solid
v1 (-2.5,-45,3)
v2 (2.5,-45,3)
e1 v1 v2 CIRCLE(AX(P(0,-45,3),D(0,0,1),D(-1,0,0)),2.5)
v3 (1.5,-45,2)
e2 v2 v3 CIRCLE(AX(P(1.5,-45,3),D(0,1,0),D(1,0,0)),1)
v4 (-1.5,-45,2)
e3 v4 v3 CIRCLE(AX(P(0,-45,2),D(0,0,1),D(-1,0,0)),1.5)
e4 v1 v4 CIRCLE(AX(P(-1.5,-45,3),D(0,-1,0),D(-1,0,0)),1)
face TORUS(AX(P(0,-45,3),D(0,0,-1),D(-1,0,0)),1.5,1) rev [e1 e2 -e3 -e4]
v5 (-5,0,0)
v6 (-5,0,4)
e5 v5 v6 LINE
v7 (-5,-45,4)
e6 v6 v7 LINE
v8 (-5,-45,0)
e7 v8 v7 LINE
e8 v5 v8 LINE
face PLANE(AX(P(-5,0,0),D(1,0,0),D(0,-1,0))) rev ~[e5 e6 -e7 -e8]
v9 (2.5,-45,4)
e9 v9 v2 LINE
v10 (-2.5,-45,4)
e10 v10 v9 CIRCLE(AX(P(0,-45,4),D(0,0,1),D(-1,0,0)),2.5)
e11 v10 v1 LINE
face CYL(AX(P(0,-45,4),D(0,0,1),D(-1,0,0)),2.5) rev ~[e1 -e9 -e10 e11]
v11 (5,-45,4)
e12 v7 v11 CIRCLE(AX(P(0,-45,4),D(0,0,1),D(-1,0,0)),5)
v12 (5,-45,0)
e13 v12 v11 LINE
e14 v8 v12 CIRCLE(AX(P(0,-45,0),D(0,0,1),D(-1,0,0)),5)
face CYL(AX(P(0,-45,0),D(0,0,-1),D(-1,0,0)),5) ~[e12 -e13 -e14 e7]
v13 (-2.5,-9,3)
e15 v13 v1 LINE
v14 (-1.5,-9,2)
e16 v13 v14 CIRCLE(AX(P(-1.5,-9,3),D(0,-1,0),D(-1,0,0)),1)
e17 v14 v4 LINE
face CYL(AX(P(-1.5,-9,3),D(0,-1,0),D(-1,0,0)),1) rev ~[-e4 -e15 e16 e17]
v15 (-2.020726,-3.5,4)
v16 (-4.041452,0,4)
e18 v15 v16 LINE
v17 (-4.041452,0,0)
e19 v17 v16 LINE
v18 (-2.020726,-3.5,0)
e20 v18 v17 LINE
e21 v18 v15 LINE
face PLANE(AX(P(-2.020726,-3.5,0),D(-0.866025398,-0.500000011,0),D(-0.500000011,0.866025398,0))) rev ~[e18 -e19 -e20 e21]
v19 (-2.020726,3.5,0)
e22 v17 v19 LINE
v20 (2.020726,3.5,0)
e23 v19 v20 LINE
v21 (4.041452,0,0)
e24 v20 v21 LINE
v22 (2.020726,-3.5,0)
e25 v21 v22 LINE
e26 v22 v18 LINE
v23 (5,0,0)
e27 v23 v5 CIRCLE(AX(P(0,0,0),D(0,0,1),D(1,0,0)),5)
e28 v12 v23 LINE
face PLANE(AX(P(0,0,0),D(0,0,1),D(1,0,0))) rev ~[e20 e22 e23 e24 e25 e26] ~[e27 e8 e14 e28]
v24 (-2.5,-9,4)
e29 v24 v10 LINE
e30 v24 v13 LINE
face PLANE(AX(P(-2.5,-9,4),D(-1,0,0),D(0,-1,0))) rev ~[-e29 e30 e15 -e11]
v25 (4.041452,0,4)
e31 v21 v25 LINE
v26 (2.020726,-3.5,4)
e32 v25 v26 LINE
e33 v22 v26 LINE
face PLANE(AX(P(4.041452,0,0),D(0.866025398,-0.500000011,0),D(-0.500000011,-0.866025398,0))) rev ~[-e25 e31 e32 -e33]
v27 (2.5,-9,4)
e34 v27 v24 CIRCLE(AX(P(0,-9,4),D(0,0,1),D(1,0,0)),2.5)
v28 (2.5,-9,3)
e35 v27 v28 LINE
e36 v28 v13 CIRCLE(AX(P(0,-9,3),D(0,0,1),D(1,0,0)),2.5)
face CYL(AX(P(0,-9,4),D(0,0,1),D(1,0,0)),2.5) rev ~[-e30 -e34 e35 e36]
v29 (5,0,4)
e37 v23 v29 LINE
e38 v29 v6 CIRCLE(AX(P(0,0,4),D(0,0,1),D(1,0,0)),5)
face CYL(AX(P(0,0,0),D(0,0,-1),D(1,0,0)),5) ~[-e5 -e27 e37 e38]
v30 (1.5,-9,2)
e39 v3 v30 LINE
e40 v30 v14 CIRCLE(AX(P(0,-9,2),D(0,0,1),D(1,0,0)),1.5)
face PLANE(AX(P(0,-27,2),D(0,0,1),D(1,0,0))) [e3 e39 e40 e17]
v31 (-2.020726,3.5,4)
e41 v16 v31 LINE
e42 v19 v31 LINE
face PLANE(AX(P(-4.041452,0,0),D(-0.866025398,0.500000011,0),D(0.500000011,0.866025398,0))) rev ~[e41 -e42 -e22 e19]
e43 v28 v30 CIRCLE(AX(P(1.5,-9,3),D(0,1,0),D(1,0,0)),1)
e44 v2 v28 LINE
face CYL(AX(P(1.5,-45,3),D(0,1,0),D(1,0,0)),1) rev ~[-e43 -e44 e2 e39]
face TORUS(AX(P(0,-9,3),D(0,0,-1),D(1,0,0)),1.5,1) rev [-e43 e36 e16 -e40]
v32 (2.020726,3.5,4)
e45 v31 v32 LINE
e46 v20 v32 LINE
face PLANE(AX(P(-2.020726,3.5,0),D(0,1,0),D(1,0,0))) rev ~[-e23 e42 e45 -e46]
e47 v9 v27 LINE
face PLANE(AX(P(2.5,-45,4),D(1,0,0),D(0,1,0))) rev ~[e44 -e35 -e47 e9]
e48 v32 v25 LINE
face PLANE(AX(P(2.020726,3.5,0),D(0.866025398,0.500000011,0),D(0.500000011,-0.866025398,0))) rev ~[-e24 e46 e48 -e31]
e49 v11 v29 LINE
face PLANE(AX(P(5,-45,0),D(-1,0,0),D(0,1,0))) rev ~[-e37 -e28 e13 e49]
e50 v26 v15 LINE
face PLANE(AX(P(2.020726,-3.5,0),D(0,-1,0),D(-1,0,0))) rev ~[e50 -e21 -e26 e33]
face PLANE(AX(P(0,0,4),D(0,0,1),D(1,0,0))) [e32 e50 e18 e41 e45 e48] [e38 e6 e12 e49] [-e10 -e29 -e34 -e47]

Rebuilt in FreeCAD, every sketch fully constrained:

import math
import FreeCAD as App
import Part
import Sketcher
from FreeCAD import Vector
Q = App.Units.Quantity


def edges_at(feature, points):
    """Names of the edges that pass closest to the given points."""
    edges = feature.Shape.Edges
    near = lambda p: min(range(len(edges)), key=lambda i: edges[i].distToShape(Part.Vertex(*p))[0])
    return sorted({f"Edge{near(p) + 1}" for p in points})


def add_polygon(sketch, points):
    """Adds a closed chain of lines whose ends are joined by coincident constraints."""
    first, n = sketch.GeometryCount, len(points)
    for a, b in zip(points, points[1:] + points[:1]):
        sketch.addGeometry(Part.LineSegment(App.Vector(*a, 0), App.Vector(*b, 0)), False)
    for i in range(n):
        sketch.addConstraint(Sketcher.Constraint("Coincident", first + i, 2, first + (i + 1) % n, 1))

doc = App.newDocument("Part")
body = doc.addObject("PartDesign::Body", "Body")

sketch1 = doc.addObject("Sketcher::SketchObject", "Sketch")
body.addObject(sketch1)
sketch1.AttachmentSupport = (doc.XY_Plane, [""])
sketch1.MapMode = "FlatFace"
sketch1.addGeometry(Part.ArcOfCircle(Part.Circle(Vector(0, 0, 0), Vector(0, 0, 1), 5), math.radians(0), math.radians(180)), False)
sketch1.addGeometry(Part.LineSegment(Vector(-5, 0, 0), Vector(-5, -45, 0)), False)
sketch1.addGeometry(Part.ArcOfCircle(Part.Circle(Vector(0, -45, 0), Vector(0, 0, 1), 5), math.radians(180), math.radians(360)), False)
sketch1.addGeometry(Part.LineSegment(Vector(5, -45, 0), Vector(5, 0, 0)), False)
add_polygon(sketch1, [(-2, -3.5), (-4, 0), (-2, 3.5), (2, 3.5), (4, 0), (2, -3.5)])
sketch1.addConstraint([
    Sketcher.Constraint("Tangent", 0, 2, 1, 1),
    Sketcher.Constraint("Tangent", 1, 2, 2, 1),
    Sketcher.Constraint("Tangent", 2, 2, 3, 1),
    Sketcher.Constraint("Tangent", 3, 2, 0, 1),
    Sketcher.Constraint("Vertical", 1),
    Sketcher.Constraint("Vertical", 3),
    Sketcher.Constraint("Horizontal", 6),
    Sketcher.Constraint("Horizontal", 9),
    Sketcher.Constraint("Coincident", 0, 3, -1, 1),
    Sketcher.Constraint("Symmetric", 4, 2, 7, 2, -1, 1),
    Sketcher.Constraint("Symmetric", 5, 2, 8, 2, -1, 1),
    Sketcher.Constraint("PointOnObject", 4, 2, -1),
    Sketcher.Constraint("Parallel", 4, 7),
    Sketcher.Constraint("Vertical", 6, 2, 8, 2),
    Sketcher.Constraint("Radius", 0, Q("5 mm")),
    Sketcher.Constraint("DistanceY", 1, 2, 1, 1, Q("45 mm")),
    Sketcher.Constraint("Angle", 4, Q("120.000001 deg")),
    Sketcher.Constraint("DistanceY", 8, 2, 6, 2, Q("7 mm")),
    Sketcher.Constraint("DistanceX", 6, 1, 6, 2, Q("4.041452 mm")),
])
pad1 = doc.addObject("PartDesign::Pad", "Pad")
body.addObject(pad1)
pad1.Profile = sketch1
pad1.Length = 4

sketch2 = doc.addObject("Sketcher::SketchObject", "Sketch001")
body.addObject(sketch2)
sketch2.AttachmentSupport = (doc.XY_Plane, [""])
sketch2.MapMode = "FlatFace"
sketch2.AttachmentOffset = App.Placement(Vector(0, 0, 4), App.Rotation())
sketch2.addGeometry([
    Part.ArcOfCircle(Part.Circle(Vector(0, -9, 0), Vector(0, 0, 1), 2.5), math.radians(0), math.radians(180)),
    Part.LineSegment(Vector(-2.5, -9, 0), Vector(-2.5, -45, 0)),
    Part.ArcOfCircle(Part.Circle(Vector(0, -45, 0), Vector(0, 0, 1), 2.5), math.radians(180), math.radians(360)),
    Part.LineSegment(Vector(2.5, -45, 0), Vector(2.5, -9, 0)),
], False)
sketch2.addConstraint([
    Sketcher.Constraint("Tangent", 0, 2, 1, 1),
    Sketcher.Constraint("Tangent", 1, 2, 2, 1),
    Sketcher.Constraint("Tangent", 2, 2, 3, 1),
    Sketcher.Constraint("Tangent", 3, 2, 0, 1),
    Sketcher.Constraint("Vertical", 1),
    Sketcher.Constraint("Vertical", 3),
    Sketcher.Constraint("PointOnObject", 0, 3, -2),
    Sketcher.Constraint("Radius", 0, Q("2.5 mm")),
    Sketcher.Constraint("DistanceY", 1, 2, 1, 1, Q("36 mm")),
    Sketcher.Constraint("DistanceY", 0, 3, -1, 1, Q("9 mm")),
])
pocket1 = doc.addObject("PartDesign::Pocket", "Pocket")
body.addObject(pocket1)
pocket1.Profile = sketch2
pocket1.Length = 2
doc.recompute()

fillet = doc.addObject("PartDesign::Fillet", "Fillet")
body.addObject(fillet)
fillet.Base = (pocket1, edges_at(pocket1, [
    (0, -6.5, 2),
    (-2.5, -27, 2),
    (0, -47.5, 2),
    (2.5, -27, 2),
]))
fillet.Radius = 1

doc.recompute()
